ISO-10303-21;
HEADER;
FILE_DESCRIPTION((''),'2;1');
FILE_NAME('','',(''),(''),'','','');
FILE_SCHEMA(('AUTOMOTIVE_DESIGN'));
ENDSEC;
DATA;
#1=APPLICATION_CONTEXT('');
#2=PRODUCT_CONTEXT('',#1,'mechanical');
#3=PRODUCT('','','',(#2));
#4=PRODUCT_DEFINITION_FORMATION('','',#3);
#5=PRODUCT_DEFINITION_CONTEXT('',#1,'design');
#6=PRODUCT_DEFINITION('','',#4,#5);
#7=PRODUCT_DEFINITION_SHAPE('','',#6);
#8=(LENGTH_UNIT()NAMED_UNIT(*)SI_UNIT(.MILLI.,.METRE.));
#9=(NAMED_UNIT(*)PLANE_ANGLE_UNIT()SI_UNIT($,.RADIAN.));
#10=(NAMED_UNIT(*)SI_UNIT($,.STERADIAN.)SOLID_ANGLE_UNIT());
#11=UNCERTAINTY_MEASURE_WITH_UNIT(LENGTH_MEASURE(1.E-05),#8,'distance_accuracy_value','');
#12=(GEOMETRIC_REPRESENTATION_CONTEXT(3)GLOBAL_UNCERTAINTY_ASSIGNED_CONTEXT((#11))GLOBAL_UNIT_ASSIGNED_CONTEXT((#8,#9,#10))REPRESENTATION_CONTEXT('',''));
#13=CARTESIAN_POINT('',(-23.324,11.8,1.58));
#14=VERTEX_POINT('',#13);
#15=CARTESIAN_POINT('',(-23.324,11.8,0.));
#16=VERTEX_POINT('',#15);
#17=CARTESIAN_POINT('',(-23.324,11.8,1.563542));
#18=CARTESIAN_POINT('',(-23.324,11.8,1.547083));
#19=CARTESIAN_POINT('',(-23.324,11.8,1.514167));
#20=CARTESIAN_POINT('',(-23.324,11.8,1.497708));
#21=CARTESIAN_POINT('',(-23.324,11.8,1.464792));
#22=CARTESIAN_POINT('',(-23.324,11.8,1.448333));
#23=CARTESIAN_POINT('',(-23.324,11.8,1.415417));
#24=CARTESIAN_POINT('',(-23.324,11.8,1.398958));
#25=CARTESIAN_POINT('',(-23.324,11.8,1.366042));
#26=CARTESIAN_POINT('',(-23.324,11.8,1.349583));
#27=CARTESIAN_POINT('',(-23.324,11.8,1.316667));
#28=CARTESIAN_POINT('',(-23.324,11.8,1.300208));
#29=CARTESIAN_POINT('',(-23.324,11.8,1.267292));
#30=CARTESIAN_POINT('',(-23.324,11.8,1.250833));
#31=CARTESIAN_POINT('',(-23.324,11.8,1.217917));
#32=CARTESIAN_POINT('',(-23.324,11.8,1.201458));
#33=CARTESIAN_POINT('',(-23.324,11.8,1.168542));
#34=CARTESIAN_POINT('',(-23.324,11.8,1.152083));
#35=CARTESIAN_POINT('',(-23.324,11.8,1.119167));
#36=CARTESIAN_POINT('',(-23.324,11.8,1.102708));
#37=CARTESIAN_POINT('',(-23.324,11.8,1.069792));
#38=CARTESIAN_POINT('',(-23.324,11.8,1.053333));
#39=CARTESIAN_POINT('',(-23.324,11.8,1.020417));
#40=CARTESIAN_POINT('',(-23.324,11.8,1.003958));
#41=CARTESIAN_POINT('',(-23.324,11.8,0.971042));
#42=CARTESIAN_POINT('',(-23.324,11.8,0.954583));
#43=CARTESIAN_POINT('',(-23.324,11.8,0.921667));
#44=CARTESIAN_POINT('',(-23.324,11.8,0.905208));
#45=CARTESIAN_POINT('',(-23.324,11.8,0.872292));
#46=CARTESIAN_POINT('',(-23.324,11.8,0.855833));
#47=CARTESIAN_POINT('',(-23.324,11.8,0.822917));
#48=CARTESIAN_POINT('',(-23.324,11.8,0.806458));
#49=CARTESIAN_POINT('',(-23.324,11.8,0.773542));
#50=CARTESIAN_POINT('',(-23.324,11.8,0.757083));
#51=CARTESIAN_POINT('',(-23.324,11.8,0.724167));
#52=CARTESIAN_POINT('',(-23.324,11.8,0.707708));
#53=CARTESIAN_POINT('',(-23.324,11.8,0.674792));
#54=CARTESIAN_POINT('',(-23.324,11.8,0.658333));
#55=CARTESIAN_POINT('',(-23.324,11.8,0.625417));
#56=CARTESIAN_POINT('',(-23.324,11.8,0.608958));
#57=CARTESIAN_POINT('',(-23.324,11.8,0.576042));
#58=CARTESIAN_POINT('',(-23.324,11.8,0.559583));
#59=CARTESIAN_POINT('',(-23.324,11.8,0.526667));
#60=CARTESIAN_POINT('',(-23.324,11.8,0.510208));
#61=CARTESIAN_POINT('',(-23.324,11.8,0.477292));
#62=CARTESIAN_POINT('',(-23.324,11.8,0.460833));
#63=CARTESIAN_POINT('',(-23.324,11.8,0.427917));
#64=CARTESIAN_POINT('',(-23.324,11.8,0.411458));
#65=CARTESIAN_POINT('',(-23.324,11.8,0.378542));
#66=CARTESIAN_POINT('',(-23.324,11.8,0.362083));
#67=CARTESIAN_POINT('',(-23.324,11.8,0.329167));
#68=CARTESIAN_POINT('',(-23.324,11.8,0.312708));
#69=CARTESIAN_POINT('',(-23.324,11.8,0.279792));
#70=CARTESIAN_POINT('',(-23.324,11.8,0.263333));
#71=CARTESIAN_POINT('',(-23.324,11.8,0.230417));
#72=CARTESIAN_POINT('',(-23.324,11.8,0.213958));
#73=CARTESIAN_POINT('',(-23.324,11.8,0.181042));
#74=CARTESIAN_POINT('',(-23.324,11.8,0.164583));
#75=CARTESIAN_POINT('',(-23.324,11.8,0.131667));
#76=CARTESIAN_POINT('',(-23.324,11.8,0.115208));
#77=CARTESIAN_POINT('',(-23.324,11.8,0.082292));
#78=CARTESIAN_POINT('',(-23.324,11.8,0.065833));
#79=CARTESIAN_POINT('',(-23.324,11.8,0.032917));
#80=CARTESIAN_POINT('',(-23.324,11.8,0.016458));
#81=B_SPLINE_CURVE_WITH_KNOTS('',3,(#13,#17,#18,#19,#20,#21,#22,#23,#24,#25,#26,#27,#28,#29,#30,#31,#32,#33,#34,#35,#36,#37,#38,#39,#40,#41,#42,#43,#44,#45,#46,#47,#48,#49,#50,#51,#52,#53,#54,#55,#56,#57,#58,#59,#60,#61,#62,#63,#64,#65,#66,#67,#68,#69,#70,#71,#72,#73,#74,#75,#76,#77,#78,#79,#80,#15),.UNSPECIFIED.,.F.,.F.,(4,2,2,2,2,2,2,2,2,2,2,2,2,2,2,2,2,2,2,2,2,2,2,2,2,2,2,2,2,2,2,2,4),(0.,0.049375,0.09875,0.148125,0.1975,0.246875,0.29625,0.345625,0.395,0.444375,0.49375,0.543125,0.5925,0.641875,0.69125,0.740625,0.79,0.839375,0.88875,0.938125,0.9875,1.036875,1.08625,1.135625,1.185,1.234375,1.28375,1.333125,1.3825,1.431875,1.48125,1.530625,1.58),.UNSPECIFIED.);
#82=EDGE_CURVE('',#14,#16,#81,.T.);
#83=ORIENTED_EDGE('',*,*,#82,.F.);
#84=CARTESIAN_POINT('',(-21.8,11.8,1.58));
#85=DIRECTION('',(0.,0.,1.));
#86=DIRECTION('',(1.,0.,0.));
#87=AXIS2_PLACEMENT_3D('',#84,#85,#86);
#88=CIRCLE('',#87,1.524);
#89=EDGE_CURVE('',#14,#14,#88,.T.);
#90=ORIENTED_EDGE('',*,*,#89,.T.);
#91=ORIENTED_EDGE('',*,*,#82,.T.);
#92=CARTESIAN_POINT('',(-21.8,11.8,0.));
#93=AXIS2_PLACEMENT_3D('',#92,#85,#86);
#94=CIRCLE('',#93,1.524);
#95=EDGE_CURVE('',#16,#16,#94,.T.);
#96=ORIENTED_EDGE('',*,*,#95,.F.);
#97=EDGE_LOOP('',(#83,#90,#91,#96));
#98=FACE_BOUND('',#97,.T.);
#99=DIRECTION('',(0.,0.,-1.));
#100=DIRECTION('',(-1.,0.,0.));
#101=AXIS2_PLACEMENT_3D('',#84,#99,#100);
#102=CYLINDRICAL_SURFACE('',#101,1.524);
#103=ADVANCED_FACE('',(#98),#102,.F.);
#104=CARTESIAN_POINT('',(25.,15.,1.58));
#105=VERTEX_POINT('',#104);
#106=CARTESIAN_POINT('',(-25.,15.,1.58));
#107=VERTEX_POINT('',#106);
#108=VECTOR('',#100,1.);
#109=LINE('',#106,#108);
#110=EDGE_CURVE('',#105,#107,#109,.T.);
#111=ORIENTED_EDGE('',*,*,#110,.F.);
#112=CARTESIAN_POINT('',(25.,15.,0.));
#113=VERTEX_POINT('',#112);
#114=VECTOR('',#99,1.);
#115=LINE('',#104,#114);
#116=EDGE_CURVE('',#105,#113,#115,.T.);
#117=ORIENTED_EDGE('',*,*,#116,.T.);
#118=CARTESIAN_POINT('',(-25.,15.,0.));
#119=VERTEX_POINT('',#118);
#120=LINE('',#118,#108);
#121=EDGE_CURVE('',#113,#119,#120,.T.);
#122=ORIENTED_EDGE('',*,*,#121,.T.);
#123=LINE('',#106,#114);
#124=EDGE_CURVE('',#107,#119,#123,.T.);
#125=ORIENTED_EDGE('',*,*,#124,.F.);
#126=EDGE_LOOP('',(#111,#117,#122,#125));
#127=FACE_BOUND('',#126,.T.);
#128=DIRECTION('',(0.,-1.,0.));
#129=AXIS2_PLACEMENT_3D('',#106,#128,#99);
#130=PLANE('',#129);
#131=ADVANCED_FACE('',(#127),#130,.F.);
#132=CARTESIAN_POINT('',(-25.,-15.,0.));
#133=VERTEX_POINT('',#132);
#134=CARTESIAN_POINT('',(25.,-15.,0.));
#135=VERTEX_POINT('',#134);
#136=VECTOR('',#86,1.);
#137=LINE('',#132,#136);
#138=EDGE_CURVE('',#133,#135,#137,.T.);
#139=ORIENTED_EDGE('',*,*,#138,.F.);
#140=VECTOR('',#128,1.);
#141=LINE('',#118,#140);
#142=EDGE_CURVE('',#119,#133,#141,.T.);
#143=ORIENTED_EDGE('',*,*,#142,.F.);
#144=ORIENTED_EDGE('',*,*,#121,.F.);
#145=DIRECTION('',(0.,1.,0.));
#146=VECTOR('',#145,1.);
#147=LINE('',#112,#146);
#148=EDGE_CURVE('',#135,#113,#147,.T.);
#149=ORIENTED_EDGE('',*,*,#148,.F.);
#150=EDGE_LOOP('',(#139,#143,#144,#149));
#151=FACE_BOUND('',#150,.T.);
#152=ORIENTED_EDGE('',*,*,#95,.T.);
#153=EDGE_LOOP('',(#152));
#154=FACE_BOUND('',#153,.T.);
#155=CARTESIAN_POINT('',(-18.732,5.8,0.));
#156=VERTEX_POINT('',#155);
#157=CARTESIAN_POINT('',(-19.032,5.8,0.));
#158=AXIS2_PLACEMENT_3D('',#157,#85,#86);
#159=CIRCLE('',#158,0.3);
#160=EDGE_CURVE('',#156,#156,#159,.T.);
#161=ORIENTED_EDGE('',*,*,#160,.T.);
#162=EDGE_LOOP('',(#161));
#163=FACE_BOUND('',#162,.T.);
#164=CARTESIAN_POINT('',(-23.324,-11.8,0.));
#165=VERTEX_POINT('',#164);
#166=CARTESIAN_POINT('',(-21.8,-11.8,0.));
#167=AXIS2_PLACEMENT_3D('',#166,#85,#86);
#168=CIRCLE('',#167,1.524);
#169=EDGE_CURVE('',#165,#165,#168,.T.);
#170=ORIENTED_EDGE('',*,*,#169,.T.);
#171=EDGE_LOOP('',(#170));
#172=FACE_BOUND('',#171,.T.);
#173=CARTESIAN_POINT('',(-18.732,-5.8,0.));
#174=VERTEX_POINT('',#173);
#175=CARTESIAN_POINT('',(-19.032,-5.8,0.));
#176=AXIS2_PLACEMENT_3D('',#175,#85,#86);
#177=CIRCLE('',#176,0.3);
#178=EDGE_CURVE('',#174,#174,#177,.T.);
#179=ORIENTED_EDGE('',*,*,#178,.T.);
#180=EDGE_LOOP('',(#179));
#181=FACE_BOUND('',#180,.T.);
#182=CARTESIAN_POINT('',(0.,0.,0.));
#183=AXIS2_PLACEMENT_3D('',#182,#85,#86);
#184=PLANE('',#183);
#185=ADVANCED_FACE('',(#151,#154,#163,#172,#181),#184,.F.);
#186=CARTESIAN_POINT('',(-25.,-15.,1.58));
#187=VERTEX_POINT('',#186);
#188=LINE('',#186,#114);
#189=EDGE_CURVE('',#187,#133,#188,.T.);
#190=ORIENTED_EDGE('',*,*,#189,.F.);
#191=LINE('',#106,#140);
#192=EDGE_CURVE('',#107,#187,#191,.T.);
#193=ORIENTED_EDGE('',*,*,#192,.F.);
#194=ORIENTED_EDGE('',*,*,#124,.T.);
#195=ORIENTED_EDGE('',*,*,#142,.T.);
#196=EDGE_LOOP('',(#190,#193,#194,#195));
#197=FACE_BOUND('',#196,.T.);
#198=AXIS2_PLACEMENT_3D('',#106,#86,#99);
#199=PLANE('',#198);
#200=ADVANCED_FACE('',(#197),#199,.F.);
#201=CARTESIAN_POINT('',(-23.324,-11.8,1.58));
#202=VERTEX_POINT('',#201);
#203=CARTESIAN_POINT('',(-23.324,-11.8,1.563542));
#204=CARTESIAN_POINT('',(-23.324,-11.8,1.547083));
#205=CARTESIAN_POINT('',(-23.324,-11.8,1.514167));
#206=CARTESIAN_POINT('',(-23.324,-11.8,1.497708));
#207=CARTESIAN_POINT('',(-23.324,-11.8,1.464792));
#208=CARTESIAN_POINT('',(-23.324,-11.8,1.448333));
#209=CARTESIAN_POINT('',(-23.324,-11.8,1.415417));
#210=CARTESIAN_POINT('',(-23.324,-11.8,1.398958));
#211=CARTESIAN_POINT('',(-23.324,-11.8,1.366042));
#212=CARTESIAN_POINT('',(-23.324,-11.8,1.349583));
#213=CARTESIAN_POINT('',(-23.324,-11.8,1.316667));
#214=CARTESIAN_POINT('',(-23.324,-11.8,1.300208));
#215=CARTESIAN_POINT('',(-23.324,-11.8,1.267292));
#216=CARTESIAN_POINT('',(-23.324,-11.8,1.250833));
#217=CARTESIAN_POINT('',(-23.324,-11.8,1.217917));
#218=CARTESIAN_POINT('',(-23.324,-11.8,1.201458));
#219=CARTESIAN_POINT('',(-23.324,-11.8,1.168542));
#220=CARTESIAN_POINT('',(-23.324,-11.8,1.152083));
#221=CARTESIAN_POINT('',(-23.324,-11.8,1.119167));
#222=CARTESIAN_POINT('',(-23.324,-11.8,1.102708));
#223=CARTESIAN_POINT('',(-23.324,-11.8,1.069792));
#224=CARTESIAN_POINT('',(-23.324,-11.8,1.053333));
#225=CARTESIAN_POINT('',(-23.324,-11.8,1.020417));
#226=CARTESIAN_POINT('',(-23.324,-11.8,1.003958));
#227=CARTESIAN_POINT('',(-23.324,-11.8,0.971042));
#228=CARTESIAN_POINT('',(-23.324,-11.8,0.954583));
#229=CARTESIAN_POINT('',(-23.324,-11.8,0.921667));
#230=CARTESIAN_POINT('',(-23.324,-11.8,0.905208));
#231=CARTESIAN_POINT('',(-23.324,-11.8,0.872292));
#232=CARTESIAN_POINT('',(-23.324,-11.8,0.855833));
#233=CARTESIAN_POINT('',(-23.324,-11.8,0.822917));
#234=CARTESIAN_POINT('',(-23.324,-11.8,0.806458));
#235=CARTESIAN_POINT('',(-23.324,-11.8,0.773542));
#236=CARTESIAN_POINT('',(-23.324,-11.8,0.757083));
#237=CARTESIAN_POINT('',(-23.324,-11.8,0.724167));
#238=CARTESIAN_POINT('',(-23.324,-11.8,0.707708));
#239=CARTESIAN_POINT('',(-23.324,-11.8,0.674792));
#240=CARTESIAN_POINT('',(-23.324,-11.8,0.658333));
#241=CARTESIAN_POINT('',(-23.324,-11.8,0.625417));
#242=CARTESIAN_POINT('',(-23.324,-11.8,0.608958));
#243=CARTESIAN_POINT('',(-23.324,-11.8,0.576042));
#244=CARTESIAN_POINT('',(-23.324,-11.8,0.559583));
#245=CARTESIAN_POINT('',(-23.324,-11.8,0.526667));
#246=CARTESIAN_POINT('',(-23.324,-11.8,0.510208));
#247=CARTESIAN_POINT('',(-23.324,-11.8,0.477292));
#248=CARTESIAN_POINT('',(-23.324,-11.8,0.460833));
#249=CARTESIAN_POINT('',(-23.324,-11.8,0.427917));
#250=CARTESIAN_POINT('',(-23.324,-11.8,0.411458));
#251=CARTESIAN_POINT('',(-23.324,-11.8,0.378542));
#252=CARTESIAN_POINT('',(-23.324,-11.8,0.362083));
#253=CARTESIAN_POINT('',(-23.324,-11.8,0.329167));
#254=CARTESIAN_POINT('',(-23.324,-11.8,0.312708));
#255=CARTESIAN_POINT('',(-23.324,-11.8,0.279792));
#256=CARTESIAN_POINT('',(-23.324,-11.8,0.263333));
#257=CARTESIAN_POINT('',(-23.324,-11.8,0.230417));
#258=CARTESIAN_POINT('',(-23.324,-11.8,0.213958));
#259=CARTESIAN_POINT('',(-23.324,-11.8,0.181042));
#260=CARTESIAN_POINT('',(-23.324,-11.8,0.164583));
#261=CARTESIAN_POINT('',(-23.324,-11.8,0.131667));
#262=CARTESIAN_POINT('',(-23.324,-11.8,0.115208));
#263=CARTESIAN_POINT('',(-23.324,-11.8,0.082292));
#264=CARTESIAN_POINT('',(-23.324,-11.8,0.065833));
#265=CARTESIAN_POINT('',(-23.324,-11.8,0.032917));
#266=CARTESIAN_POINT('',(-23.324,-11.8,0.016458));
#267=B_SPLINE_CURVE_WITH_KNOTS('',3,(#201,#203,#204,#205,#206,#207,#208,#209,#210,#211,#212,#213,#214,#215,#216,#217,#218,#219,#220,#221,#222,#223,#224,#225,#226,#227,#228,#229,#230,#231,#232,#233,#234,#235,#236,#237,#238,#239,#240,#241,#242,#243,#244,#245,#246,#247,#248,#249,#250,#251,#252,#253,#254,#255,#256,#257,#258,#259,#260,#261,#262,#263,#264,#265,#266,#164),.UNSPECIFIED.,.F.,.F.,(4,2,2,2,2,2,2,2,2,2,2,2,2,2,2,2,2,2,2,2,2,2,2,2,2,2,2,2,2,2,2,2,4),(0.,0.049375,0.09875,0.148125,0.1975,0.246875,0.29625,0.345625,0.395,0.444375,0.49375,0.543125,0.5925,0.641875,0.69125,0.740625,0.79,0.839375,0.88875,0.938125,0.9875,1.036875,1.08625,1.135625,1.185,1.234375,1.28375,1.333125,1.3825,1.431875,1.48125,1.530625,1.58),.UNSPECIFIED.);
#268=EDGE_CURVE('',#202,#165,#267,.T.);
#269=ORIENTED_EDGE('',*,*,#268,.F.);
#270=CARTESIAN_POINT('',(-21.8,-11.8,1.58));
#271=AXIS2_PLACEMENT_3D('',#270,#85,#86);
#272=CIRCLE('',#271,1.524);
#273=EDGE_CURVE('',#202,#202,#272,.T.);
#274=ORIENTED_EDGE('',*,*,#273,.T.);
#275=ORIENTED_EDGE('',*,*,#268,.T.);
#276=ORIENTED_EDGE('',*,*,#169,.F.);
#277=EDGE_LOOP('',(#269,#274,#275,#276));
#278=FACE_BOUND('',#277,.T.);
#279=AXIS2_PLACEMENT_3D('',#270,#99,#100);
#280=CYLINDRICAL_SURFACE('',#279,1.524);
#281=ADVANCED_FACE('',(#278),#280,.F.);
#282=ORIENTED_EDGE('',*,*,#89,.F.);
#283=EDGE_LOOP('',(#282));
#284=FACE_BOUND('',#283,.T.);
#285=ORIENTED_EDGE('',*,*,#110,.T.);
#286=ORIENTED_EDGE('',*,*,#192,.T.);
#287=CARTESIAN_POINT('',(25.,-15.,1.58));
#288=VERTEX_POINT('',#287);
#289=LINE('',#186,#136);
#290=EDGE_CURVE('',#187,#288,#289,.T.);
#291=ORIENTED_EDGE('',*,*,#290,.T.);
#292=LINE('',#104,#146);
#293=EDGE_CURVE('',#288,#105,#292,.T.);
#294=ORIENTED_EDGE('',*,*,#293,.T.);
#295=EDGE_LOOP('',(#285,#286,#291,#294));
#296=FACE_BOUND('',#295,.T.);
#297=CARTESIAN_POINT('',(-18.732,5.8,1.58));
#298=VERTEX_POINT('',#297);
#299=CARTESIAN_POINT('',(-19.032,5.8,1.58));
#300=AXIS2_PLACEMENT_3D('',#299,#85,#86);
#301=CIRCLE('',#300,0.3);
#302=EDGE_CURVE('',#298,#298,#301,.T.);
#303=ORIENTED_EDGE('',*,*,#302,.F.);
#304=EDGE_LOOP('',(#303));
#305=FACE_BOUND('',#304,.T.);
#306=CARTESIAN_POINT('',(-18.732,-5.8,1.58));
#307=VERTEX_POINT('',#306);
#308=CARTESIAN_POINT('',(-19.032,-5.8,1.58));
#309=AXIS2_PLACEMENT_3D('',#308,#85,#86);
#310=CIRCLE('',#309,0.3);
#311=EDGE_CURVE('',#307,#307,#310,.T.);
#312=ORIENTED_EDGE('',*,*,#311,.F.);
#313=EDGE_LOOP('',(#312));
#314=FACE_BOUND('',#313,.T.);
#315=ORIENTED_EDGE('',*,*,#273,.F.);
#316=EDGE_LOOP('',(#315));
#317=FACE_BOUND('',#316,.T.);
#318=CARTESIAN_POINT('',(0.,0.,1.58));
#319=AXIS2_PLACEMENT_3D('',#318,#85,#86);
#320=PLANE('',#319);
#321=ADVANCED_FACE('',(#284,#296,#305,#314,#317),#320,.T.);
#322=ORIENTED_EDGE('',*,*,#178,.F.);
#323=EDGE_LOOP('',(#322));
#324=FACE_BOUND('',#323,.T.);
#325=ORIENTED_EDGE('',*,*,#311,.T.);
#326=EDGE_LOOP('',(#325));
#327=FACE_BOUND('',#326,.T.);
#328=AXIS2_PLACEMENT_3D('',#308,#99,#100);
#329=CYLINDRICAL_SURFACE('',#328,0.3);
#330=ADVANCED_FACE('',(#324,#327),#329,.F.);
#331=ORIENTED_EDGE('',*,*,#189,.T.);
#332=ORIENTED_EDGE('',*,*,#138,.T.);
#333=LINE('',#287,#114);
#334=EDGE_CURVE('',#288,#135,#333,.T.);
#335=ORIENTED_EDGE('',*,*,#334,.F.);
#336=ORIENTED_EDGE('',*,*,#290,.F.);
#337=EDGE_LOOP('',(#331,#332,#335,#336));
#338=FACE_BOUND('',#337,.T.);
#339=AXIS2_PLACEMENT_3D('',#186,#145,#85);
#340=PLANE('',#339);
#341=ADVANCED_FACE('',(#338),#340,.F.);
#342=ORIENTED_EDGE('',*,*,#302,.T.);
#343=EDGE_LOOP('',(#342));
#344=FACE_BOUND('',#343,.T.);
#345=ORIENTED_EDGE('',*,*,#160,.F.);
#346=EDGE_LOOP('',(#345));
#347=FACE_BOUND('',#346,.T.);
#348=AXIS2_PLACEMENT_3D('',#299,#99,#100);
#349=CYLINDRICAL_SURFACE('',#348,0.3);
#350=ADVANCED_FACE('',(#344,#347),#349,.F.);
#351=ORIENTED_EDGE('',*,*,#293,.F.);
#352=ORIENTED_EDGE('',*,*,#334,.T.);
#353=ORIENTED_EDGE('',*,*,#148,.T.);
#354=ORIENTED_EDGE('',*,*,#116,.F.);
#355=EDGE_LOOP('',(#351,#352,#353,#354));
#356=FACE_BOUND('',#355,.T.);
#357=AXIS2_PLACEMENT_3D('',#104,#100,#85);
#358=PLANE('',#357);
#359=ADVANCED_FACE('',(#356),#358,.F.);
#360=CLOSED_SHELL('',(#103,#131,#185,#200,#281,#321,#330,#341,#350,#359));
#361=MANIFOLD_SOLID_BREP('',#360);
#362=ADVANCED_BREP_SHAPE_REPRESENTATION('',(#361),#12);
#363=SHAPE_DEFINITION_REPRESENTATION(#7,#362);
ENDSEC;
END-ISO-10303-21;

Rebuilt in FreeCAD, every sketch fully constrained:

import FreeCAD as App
import Part
import Sketcher
Q = App.Units.Quantity


def add_polygon(sketch, points):
    """Adds a closed chain of lines whose ends are joined by coincident constraints."""
    first, n = sketch.GeometryCount, len(points)
    for a, b in zip(points, points[1:] + points[:1]):
        sketch.addGeometry(Part.LineSegment(App.Vector(*a, 0), App.Vector(*b, 0)), False)
    for i in range(n):
        sketch.addConstraint(Sketcher.Constraint("Coincident", first + i, 2, first + (i + 1) % n, 1))

doc = App.newDocument("Part")
params = doc.addObject("Spreadsheet::Sheet", "Params")
for row, (alias, value) in enumerate([
    ("sketch1_diameter", "0.6 mm"),
    ("sketch1_width", "50 mm"),
    ("sketch1_height", "30 mm"),
    ("pad1_length", "1.58 mm"),
], start=1):
    params.set(f"A{row}", alias)
    params.set(f"B{row}", "=" + value)
    params.setAlias(f"B{row}", alias)

body = doc.addObject("PartDesign::Body", "Body")

# Sketch on XY plane
sketch1 = doc.addObject("Sketcher::SketchObject", "Sketch")
body.addObject(sketch1)
sketch1.AttachmentSupport = (doc.XY_Plane, [""])
sketch1.MapMode = "FlatFace"
add_polygon(sketch1, [(-25, 15), (-25, -15), (25, -15), (25, 15)])  # lines 0-3
sketch1.addGeometry(Part.Circle(App.Vector(-21.8, -11.8, 0), App.Vector(0, 0, 1), 1.524), False)  # 4
sketch1.addGeometry(Part.Circle(App.Vector(-19.032, -5.8, 0), App.Vector(0, 0, 1), 0.3), False)  # 5
sketch1.addGeometry(Part.Circle(App.Vector(-21.8, 11.8, 0), App.Vector(0, 0, 1), 1.524), False)  # 6
sketch1.addGeometry(Part.Circle(App.Vector(-19.032, 5.8, 0), App.Vector(0, 0, 1), 0.3), False)  # 7
sketch1.addConstraint(Sketcher.Constraint("Vertical", 0))
sketch1.addConstraint(Sketcher.Constraint("Horizontal", 1))
sketch1.addConstraint(Sketcher.Constraint("Vertical", 2))
sketch1.addConstraint(Sketcher.Constraint("Horizontal", 3))
sketch1.addConstraint(Sketcher.Constraint("Equal", 4, 6))
sketch1.addConstraint(Sketcher.Constraint("Equal", 5, 7))
sketch1.addConstraint(Sketcher.Constraint("Symmetric", 0, 2, 2, 2, -1, 1))
sketch1.addConstraint(Sketcher.Constraint("Symmetric", 4, 3, 6, 3, -1))
sketch1.addConstraint(Sketcher.Constraint("Symmetric", 5, 3, 7, 3, -1))
sketch1.addConstraint(Sketcher.Constraint("Diameter", 5, Q("0.6 mm")))
sketch1.addConstraint(Sketcher.Constraint("DistanceX", 1, 1, 1, 2, Q("50 mm")))
sketch1.addConstraint(Sketcher.Constraint("DistanceY", 0, 2, 0, 1, Q("30 mm")))
sketch1.addConstraint(Sketcher.Constraint("Diameter", 4, Q("3.048 mm")))
sketch1.addConstraint(Sketcher.Constraint("DistanceY", 4, 3, 5, 3, Q("6 mm")))
sketch1.addConstraint(Sketcher.Constraint("DistanceX", 4, 3, -1, 1, Q("21.8 mm")))
sketch1.addConstraint(Sketcher.Constraint("DistanceY", 4, 3, -1, 1, Q("11.8 mm")))
sketch1.addConstraint(Sketcher.Constraint("DistanceX", 5, 3, -1, 1, Q("19.032 mm")))
sketch1.setExpression("Constraints[13]", "Params.sketch1_diameter")
sketch1.setExpression("Constraints[14]", "Params.sketch1_width")
sketch1.setExpression("Constraints[15]", "Params.sketch1_height")
pad1 = doc.addObject("PartDesign::Pad", "Pad")
body.addObject(pad1)
pad1.Profile = sketch1
pad1.setExpression("Length", "Params.pad1_length")

doc.recompute()
